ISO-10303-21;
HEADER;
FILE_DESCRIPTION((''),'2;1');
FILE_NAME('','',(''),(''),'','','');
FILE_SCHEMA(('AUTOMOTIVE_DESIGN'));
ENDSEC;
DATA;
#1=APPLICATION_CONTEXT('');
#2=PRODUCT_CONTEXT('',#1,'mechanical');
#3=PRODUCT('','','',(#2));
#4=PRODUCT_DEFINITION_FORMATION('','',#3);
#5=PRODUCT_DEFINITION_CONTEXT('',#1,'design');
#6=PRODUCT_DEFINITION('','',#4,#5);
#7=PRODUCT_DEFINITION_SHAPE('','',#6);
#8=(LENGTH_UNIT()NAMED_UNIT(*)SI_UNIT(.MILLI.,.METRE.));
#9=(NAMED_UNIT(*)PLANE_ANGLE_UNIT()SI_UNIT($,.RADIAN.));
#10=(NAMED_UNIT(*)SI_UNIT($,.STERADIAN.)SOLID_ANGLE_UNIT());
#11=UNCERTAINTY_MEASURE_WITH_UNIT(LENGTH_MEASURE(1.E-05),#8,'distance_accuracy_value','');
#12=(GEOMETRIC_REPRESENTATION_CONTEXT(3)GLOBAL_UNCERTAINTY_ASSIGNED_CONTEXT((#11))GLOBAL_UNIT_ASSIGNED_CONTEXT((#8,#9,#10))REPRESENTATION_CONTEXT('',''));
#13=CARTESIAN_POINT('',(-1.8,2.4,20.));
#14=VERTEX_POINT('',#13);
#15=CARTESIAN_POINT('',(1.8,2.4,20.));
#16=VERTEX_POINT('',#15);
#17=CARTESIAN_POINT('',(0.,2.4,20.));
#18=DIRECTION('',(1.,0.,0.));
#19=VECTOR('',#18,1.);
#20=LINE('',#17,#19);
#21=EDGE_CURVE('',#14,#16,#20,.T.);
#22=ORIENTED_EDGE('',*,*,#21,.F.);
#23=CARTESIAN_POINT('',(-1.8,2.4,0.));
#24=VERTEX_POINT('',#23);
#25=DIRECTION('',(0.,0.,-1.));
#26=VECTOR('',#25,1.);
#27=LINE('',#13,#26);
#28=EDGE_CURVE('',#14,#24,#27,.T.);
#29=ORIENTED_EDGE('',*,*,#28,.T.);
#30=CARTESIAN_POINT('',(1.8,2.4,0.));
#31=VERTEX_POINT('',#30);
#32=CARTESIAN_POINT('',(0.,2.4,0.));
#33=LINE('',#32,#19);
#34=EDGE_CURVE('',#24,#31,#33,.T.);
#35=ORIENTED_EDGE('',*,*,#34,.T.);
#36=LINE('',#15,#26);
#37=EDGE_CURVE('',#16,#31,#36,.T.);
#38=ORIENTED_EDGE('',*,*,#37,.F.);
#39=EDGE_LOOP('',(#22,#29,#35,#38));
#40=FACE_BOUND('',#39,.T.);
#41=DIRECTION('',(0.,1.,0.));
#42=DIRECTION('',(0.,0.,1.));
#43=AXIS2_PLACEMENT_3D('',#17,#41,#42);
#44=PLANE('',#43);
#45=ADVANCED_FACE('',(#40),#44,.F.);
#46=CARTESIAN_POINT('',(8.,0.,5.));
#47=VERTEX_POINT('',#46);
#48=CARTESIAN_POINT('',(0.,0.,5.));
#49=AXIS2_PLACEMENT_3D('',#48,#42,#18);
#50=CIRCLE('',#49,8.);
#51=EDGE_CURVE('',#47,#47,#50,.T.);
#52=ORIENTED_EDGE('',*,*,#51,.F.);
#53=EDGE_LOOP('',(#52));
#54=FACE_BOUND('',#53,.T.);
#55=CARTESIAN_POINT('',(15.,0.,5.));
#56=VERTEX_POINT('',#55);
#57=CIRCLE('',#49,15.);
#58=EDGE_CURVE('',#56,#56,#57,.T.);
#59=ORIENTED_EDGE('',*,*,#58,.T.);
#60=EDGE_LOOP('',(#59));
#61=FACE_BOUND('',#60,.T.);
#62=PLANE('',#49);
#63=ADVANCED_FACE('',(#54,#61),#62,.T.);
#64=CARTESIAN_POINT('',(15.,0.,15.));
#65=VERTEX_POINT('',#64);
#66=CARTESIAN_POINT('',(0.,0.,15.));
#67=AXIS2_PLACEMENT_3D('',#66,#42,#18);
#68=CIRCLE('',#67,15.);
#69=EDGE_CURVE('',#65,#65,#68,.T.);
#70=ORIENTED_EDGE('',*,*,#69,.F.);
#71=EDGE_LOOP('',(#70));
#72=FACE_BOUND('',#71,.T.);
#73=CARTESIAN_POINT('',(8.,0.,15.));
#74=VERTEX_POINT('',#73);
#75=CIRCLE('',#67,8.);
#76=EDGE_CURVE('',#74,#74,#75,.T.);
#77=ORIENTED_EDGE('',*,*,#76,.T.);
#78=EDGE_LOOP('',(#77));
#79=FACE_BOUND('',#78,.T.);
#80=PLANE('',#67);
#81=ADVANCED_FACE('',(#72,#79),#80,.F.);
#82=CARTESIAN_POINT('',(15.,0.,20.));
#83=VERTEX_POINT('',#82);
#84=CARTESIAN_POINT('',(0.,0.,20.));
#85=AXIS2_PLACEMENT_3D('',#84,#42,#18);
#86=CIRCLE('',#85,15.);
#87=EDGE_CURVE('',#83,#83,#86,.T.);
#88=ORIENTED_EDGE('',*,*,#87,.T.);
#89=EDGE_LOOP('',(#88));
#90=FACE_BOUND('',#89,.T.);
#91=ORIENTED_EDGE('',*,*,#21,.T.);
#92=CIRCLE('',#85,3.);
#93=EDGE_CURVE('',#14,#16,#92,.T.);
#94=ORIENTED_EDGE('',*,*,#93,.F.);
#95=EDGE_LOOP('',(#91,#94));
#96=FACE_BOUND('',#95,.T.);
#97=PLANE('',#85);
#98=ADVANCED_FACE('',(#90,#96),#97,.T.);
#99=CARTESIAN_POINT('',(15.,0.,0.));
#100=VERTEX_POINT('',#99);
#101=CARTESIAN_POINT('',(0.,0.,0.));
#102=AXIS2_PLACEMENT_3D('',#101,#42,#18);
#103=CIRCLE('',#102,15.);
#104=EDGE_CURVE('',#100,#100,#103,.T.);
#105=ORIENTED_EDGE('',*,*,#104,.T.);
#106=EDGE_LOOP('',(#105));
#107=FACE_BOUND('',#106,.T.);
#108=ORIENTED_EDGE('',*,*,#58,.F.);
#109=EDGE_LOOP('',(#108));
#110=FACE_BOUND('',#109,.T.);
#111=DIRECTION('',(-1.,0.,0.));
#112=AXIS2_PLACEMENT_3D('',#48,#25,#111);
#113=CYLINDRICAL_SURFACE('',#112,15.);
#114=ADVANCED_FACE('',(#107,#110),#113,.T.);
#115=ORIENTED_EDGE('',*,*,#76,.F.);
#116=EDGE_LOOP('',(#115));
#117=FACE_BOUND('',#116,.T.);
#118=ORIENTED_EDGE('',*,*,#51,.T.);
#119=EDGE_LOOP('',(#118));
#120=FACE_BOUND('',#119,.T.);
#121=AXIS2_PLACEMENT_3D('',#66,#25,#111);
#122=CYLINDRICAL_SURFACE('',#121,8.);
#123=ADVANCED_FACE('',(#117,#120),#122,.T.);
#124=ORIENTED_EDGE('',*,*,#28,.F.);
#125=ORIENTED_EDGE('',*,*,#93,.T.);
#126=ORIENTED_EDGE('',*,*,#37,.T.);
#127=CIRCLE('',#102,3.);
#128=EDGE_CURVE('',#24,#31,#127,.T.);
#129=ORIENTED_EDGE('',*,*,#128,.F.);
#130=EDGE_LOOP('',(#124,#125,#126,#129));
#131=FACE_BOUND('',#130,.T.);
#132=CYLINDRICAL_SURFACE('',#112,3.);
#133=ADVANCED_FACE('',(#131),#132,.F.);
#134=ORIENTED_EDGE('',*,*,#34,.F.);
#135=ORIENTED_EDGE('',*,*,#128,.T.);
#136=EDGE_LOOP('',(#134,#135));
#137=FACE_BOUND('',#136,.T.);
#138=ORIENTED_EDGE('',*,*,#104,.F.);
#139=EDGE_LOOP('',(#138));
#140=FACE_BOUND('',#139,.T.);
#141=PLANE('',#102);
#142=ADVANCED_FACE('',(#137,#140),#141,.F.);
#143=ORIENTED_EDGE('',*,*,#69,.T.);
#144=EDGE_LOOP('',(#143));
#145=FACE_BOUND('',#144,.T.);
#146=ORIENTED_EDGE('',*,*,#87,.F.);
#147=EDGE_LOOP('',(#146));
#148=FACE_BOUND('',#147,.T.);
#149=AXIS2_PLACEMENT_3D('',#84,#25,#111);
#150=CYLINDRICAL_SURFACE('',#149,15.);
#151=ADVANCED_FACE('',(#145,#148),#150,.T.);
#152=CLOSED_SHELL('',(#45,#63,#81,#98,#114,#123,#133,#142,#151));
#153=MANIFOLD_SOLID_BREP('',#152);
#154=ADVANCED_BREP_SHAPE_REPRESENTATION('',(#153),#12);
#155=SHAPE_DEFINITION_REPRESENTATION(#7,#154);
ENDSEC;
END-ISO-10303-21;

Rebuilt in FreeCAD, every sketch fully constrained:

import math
import FreeCAD as App
import Part
import Sketcher
from FreeCAD import Vector
Q = App.Units.Quantity

doc = App.newDocument("Part")
params = doc.addObject("Spreadsheet::Sheet", "Params")
for row, (alias, value) in enumerate([
    ("sketch1_diameter", "30 mm"),
    ("sketch1_diameter2", "6 mm"),
    ("pad1_length", "5 mm"),
    ("sketch2_diameter", "16 mm"),
    ("sketch2_diameter2", "6 mm"),
    ("pad2_length", "10 mm"),
    ("sketch3_diameter", "30 mm"),
    ("sketch3_diameter2", "6 mm"),
    ("pad3_length", "5 mm"),
    ("sketch4_radius", "3 mm"),
    ("sketch4_width", "3.6 mm"),
    ("pad4_length", "20 mm"),
], start=1):
    params.set(f"A{row}", alias)
    params.set(f"B{row}", "=" + value)
    params.setAlias(f"B{row}", alias)

body = doc.addObject("PartDesign::Body", "Body")

# Sketch on XY plane
sketch1 = doc.addObject("Sketcher::SketchObject", "Sketch")
body.addObject(sketch1)
sketch1.AttachmentSupport = (doc.XY_Plane, [""])
sketch1.MapMode = "FlatFace"
sketch1.addGeometry(Part.Circle(Vector(0, 0, 0), Vector(0, 0, 1), 15), False)
sketch1.addGeometry(Part.Circle(Vector(0, 0, 0), Vector(0, 0, 1), 3), False)
sketch1.addConstraint(Sketcher.Constraint("Coincident", 0, 3, -1, 1))
sketch1.addConstraint(Sketcher.Constraint("Coincident", 1, 3, -1, 1))
sketch1.addConstraint(Sketcher.Constraint("Diameter", 0, Q("30 mm")))
sketch1.addConstraint(Sketcher.Constraint("Diameter", 1, Q("6 mm")))
sketch1.setExpression("Constraints[2]", "Params.sketch1_diameter")
sketch1.setExpression("Constraints[3]", "Params.sketch1_diameter2")
pad1 = doc.addObject("PartDesign::Pad", "Pad")
body.addObject(pad1)
pad1.Profile = sketch1
pad1.setExpression("Length", "Params.pad1_length")

# Sketch on XY plane
sketch2 = doc.addObject("Sketcher::SketchObject", "Sketch001")
body.addObject(sketch2)
sketch2.AttachmentSupport = (doc.XY_Plane, [""])
sketch2.MapMode = "FlatFace"
sketch2.AttachmentOffset = App.Placement(Vector(0, 0, 5), App.Rotation())
sketch2.addGeometry(Part.Circle(Vector(0, 0, 0), Vector(0, 0, 1), 8), False)
sketch2.addGeometry(Part.Circle(Vector(0, 0, 0), Vector(0, 0, 1), 3), False)
sketch2.addConstraint(Sketcher.Constraint("Coincident", 0, 3, -1, 1))
sketch2.addConstraint(Sketcher.Constraint("Coincident", 1, 3, -1, 1))
sketch2.addConstraint(Sketcher.Constraint("Diameter", 0, Q("16 mm")))
sketch2.addConstraint(Sketcher.Constraint("Diameter", 1, Q("6 mm")))
sketch2.setExpression("Constraints[2]", "Params.sketch2_diameter")
sketch2.setExpression("Constraints[3]", "Params.sketch2_diameter2")
pad2 = doc.addObject("PartDesign::Pad", "Pad001")
body.addObject(pad2)
pad2.Profile = sketch2
pad2.setExpression("Length", "Params.pad2_length")

# Sketch on XY plane
sketch3 = doc.addObject("Sketcher::SketchObject", "Sketch002")
body.addObject(sketch3)
sketch3.AttachmentSupport = (doc.XY_Plane, [""])
sketch3.MapMode = "FlatFace"
sketch3.AttachmentOffset = App.Placement(Vector(0, 0, 15), App.Rotation())
sketch3.addGeometry(Part.Circle(Vector(0, 0, 0), Vector(0, 0, 1), 15), False)
sketch3.addGeometry(Part.Circle(Vector(0, 0, 0), Vector(0, 0, 1), 3), False)
sketch3.addConstraint(Sketcher.Constraint("Coincident", 0, 3, -1, 1))
sketch3.addConstraint(Sketcher.Constraint("Coincident", 1, 3, -1, 1))
sketch3.addConstraint(Sketcher.Constraint("Diameter", 0, Q("30 mm")))
sketch3.addConstraint(Sketcher.Constraint("Diameter", 1, Q("6 mm")))
sketch3.setExpression("Constraints[2]", "Params.sketch3_diameter")
sketch3.setExpression("Constraints[3]", "Params.sketch3_diameter2")
pad3 = doc.addObject("PartDesign::Pad", "Pad002")
body.addObject(pad3)
pad3.Profile = sketch3
pad3.setExpression("Length", "Params.pad3_length")

# Sketch on XY plane
sketch4 = doc.addObject("Sketcher::SketchObject", "Sketch003")
body.addObject(sketch4)
sketch4.AttachmentSupport = (doc.XY_Plane, [""])
sketch4.MapMode = "FlatFace"
sketch4.addGeometry(Part.ArcOfCircle(Part.Circle(Vector(0, 0, 0), Vector(0, 0, 1), 3), math.radians(53.130102), math.radians(126.869898)), False)
sketch4.addGeometry(Part.LineSegment(Vector(-1.8, 2.4, 0), Vector(1.8, 2.4, 0)), False)
sketch4.addConstraint(Sketcher.Constraint("Coincident", 0, 1, 1, 2))
sketch4.addConstraint(Sketcher.Constraint("Coincident", 1, 1, 0, 2))
sketch4.addConstraint(Sketcher.Constraint("Horizontal", 1))
sketch4.addConstraint(Sketcher.Constraint("Coincident", 0, 3, -1, 1))
sketch4.addConstraint(Sketcher.Constraint("Radius", 0, Q("3 mm")))
sketch4.addConstraint(Sketcher.Constraint("DistanceX", 1, 1, 1, 2, Q("3.6 mm")))
sketch4.setExpression("Constraints[4]", "Params.sketch4_radius")
sketch4.setExpression("Constraints[5]", "Params.sketch4_width")
pad4 = doc.addObject("PartDesign::Pad", "Pad003")
body.addObject(pad4)
pad4.Profile = sketch4
pad4.setExpression("Length", "Params.pad4_length")

doc.recompute()
